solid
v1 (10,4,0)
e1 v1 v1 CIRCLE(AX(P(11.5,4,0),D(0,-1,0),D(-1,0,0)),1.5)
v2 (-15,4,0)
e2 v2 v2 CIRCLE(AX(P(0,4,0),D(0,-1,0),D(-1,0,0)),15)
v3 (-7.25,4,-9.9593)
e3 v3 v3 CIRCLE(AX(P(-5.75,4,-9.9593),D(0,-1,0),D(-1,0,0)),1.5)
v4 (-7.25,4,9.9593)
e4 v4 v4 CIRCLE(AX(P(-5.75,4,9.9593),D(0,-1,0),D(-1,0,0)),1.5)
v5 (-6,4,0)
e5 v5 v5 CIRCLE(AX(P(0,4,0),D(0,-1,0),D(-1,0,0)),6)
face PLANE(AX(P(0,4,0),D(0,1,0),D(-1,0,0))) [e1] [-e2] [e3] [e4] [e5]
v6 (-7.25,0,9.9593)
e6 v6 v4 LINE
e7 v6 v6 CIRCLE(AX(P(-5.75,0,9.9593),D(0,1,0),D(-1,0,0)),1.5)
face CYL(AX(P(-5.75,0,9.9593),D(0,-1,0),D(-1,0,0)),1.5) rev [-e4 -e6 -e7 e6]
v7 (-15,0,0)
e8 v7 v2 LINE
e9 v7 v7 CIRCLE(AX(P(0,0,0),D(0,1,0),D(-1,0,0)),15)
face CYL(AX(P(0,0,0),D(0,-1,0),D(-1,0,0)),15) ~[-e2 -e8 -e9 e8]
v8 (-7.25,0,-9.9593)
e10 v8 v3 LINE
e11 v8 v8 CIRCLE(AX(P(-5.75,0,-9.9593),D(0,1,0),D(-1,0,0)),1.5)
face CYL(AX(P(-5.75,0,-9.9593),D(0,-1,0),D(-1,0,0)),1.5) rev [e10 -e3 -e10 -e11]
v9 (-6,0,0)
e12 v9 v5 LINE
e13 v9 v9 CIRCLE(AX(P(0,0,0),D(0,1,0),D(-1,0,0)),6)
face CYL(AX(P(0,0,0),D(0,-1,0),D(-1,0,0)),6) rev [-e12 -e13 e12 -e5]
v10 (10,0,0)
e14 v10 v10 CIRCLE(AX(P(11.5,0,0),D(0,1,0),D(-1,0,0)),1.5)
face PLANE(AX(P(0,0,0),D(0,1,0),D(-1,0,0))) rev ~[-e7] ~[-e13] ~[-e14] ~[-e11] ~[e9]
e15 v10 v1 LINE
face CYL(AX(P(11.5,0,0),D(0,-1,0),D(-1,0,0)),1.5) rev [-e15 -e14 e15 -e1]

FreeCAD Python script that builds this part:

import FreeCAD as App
import Part
import Sketcher

V = App.Vector
Q = App.Units.Quantity

doc = App.newDocument("Part")
body = doc.addObject("PartDesign::Body", "Body")

# Sketch on XZ plane
sketch1 = body.newObject("Sketcher::SketchObject", "Sketch")
sketch1.AttachmentSupport = (doc.getObject("XZ_Plane"), [""])
sketch1.MapMode = "FlatFace"
sketch1.addGeometry([
    Part.Circle(V(0, 0, 0), V(0, 0, 1), 15),  # 0
    Part.Circle(V(-5.8, -10, 0), V(0, 0, 1), 1.5),  # 1
    Part.Circle(V(-5.8, 10, 0), V(0, 0, 1), 1.5),  # 2
    Part.Circle(V(11.5, 0, 0), V(0, 0, 1), 1.5),  # 3
    Part.Circle(V(0, 0, 0), V(0, 0, 1), 6),  # 4
], False)
sketch1.addConstraint([
    Sketcher.Constraint("Coincident", 0, 3, -1, 1),
    Sketcher.Constraint("Coincident", 4, 3, -1, 1),
    Sketcher.Constraint("Equal", 1, 2),
    Sketcher.Constraint("Equal", 2, 3),
    Sketcher.Constraint("Symmetric", 1, 3, 2, 3, -1),
    Sketcher.Constraint("PointOnObject", 3, 3, -1),
    Sketcher.Constraint("Diameter", 0, Q("30 mm")),
    Sketcher.Constraint("Diameter", 1, Q("3 mm")),
    Sketcher.Constraint("Diameter", 4, Q("12 mm")),
    Sketcher.Constraint("DistanceX", -1, 1, 3, 3, Q("11.5 mm")),
    Sketcher.Constraint("DistanceX", 1, 3, -1, 1, Q("5.75 mm")),
    Sketcher.Constraint("DistanceY", 1, 3, -1, 1, Q("9.9593 mm")),
])
pad1 = body.newObject("PartDesign::Pad", "Pad")
pad1.Profile = sketch1
pad1.Length = 4
pad1.Reversed = True

doc.recompute()
